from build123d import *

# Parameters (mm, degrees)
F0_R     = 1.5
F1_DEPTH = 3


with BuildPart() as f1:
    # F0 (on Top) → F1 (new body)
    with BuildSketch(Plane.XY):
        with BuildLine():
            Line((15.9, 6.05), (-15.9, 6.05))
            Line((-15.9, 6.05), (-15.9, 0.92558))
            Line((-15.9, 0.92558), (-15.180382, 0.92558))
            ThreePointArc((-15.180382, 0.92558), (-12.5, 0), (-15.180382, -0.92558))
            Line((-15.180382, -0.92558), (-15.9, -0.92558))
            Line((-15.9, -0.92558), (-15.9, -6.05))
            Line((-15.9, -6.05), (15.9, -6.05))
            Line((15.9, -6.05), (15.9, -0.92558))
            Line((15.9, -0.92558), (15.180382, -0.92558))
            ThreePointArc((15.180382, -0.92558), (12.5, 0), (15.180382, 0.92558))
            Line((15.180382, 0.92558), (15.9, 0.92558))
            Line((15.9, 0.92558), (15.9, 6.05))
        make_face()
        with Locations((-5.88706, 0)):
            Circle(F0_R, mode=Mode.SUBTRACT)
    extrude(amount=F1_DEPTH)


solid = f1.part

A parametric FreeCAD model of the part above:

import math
import FreeCAD as App
import Part
import Sketcher
Q = App.Units.Quantity

doc = App.newDocument("Part")
body = doc.addObject("PartDesign::Body", "Body")

# Sketch on XY plane
sketch1 = doc.addObject("Sketcher::SketchObject", "Sketch")
body.addObject(sketch1)
sketch1.AttachmentSupport = (doc.XY_Plane, [""])
sketch1.MapMode = "FlatFace"
sketch1.addGeometry(Part.LineSegment(App.Vector(15.9, 6, 0), App.Vector(-15.9, 6, 0)), False)
sketch1.addGeometry(Part.LineSegment(App.Vector(-15.9, 6, 0), App.Vector(-15.9, 0.9, 0)), False)
sketch1.addGeometry(Part.LineSegment(App.Vector(-15.9, 0.9, 0), App.Vector(-15.2, 0.9, 0)), False)
sketch1.addGeometry(Part.ArcOfCircle(Part.Circle(App.Vector(-14, 0, 0), App.Vector(0, 0, 1), 1.5), math.radians(-142), math.radians(142)), False)
sketch1.addGeometry(Part.LineSegment(App.Vector(-15.2, -0.9, 0), App.Vector(-15.9, -0.9, 0)), False)
sketch1.addGeometry(Part.LineSegment(App.Vector(-15.9, -0.9, 0), App.Vector(-15.9, -6, 0)), False)
sketch1.addGeometry(Part.LineSegment(App.Vector(-15.9, -6, 0), App.Vector(15.9, -6, 0)), False)
sketch1.addGeometry(Part.LineSegment(App.Vector(15.9, -6, 0), App.Vector(15.9, -0.9, 0)), False)
sketch1.addGeometry(Part.LineSegment(App.Vector(15.9, -0.9, 0), App.Vector(15.2, -0.9, 0)), False)
sketch1.addGeometry(Part.ArcOfCircle(Part.Circle(App.Vector(14, 0, 0), App.Vector(0, 0, 1), 1.5), math.radians(38), math.radians(322)), False)
sketch1.addGeometry(Part.LineSegment(App.Vector(15.2, 0.9, 0), App.Vector(15.9, 0.9, 0)), False)
sketch1.addGeometry(Part.LineSegment(App.Vector(15.9, 0.9, 0), App.Vector(15.9, 6, 0)), False)
sketch1.addGeometry(Part.Circle(App.Vector(-5.9, 0, 0), App.Vector(0, 0, 1), 1.5), False)
sketch1.addConstraint(Sketcher.Constraint("Coincident", 0, 2, 1, 1))
sketch1.addConstraint(Sketcher.Constraint("Coincident", 1, 2, 2, 1))
sketch1.addConstraint(Sketcher.Constraint("Coincident", 2, 2, 3, 2))
sketch1.addConstraint(Sketcher.Constraint("Coincident", 3, 1, 4, 1))
sketch1.addConstraint(Sketcher.Constraint("Coincident", 4, 2, 5, 1))
sketch1.addConstraint(Sketcher.Constraint("Coincident", 5, 2, 6, 1))
sketch1.addConstraint(Sketcher.Constraint("Coincident", 6, 2, 7, 1))
sketch1.addConstraint(Sketcher.Constraint("Coincident", 7, 2, 8, 1))
sketch1.addConstraint(Sketcher.Constraint("Coincident", 8, 2, 9, 2))
sketch1.addConstraint(Sketcher.Constraint("Coincident", 9, 1, 10, 1))
sketch1.addConstraint(Sketcher.Constraint("Coincident", 10, 2, 11, 1))
sketch1.addConstraint(Sketcher.Constraint("Coincident", 11, 2, 0, 1))
sketch1.addConstraint(Sketcher.Constraint("Horizontal", 0))
sketch1.addConstraint(Sketcher.Constraint("Vertical", 1))
sketch1.addConstraint(Sketcher.Constraint("Horizontal", 2))
sketch1.addConstraint(Sketcher.Constraint("Horizontal", 4))
sketch1.addConstraint(Sketcher.Constraint("Vertical", 5))
sketch1.addConstraint(Sketcher.Constraint("Horizontal", 6))
sketch1.addConstraint(Sketcher.Constraint("Vertical", 7))
sketch1.addConstraint(Sketcher.Constraint("Horizontal", 8))
sketch1.addConstraint(Sketcher.Constraint("Horizontal", 10))
sketch1.addConstraint(Sketcher.Constraint("Vertical", 11))
sketch1.addConstraint(Sketcher.Constraint("Equal", 3, 9))
sketch1.addConstraint(Sketcher.Constraint("Equal", 9, 12))
sketch1.addConstraint(Sketcher.Constraint("Symmetric", 3, 3, 9, 3, -1, 1))
sketch1.addConstraint(Sketcher.Constraint("Symmetric", 0, 2, 6, 2, -1, 1))
sketch1.addConstraint(Sketcher.Constraint("Symmetric", 4, 2, 10, 2, -1, 1))
sketch1.addConstraint(Sketcher.Constraint("Symmetric", 4, 2, 7, 2, -2))
sketch1.addConstraint(Sketcher.Constraint("Symmetric", 2, 2, 9, 1, -2))
sketch1.addConstraint(Sketcher.Constraint("PointOnObject", 12, 3, -1))
sketch1.addConstraint(Sketcher.Constraint("Diameter", 12, Q("3 mm")))
sketch1.addConstraint(Sketcher.Constraint("DistanceX", 0, 2, 0, 1, Q("31.8 mm")))
sketch1.addConstraint(Sketcher.Constraint("DistanceX", 3, 3, -1, 1, Q("14 mm")))
sketch1.addConstraint(Sketcher.Constraint("DistanceY", -1, 1, 0, 2, Q("6.05 mm")))
sketch1.addConstraint(Sketcher.Constraint("DistanceX", 2, 1, 2, 2, Q("0.719618 mm")))
sketch1.addConstraint(Sketcher.Constraint("DistanceX", 12, 3, -1, 1, Q("5.88706 mm")))
pad1 = doc.addObject("PartDesign::Pad", "Pad")
body.addObject(pad1)
pad1.Profile = sketch1
pad1.Length = 3

doc.recompute()
